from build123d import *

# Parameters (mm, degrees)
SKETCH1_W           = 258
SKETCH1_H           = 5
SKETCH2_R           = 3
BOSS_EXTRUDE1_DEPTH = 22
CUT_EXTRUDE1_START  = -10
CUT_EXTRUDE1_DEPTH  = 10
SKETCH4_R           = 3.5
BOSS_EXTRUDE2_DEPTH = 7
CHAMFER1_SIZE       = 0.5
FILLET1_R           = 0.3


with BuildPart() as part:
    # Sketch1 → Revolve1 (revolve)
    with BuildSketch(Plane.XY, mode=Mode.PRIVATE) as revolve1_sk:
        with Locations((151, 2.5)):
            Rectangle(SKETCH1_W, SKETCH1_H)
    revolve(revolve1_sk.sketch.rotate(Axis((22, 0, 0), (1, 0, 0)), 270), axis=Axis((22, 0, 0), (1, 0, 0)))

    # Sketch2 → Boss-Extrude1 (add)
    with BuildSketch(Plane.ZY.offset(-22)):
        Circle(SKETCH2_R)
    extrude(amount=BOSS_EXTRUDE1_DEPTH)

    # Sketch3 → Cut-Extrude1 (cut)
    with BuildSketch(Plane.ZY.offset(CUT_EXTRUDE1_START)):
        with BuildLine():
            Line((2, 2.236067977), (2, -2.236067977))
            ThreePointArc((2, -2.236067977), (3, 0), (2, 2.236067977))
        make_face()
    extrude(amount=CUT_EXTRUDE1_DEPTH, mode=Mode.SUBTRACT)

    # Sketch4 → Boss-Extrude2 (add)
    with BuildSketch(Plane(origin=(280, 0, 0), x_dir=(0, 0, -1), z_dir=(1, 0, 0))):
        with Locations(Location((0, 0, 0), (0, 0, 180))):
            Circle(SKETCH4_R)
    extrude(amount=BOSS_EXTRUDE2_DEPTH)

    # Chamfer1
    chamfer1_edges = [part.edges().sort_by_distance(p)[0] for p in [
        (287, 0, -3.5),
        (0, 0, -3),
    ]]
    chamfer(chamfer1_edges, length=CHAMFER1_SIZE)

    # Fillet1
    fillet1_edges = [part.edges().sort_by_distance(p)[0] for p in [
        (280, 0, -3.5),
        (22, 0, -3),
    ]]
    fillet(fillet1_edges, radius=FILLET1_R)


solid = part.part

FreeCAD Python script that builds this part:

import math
import FreeCAD as App
import Part
import Sketcher
from FreeCAD import Vector


def edges_at(feature, points):
    """Names of the edges that pass closest to the given points."""
    edges = feature.Shape.Edges
    near = lambda p: min(range(len(edges)), key=lambda i: edges[i].distToShape(Part.Vertex(*p))[0])
    return sorted({f"Edge{near(p) + 1}" for p in points})

doc = App.newDocument("Part")
body = doc.addObject("PartDesign::Body", "Body")

sketch1 = body.newObject("Sketcher::SketchObject", "Sketch")
sketch1.AttachmentSupport = (doc.getObject("XY_Plane"), [""])
sketch1.MapMode = "FlatFace"
sketch1.addGeometry([
    Part.LineSegment(Vector(22, 5, 0), Vector(22, 0, 0)),
    Part.LineSegment(Vector(22, 0, 0), Vector(280, 0, 0)),
    Part.LineSegment(Vector(280, 0, 0), Vector(280, 5, 0)),
    Part.LineSegment(Vector(280, 5, 0), Vector(22, 5, 0)),
], False)
sketch1.addConstraint([
    Sketcher.Constraint("Coincident", 0, 2, 1, 1),
    Sketcher.Constraint("Coincident", 1, 2, 2, 1),
    Sketcher.Constraint("Coincident", 2, 2, 3, 1),
    Sketcher.Constraint("Coincident", 3, 2, 0, 1),
    Sketcher.Constraint("Vertical", 0),
    Sketcher.Constraint("Horizontal", 1),
    Sketcher.Constraint("Vertical", 2),
    Sketcher.Constraint("Horizontal", 3),
    Sketcher.Constraint("PointOnObject", 0, 2, -1),
    Sketcher.Constraint("DistanceX", 1, 1, 1, 2, 258.0),
    Sketcher.Constraint("DistanceY", 0, 2, 0, 1, 5.0),
    Sketcher.Constraint("DistanceX", -1, 1, 0, 2, 22.0),
])
revolution = body.newObject("PartDesign::Revolution", "Revolution")
revolution.Profile = sketch1
revolution.ReferenceAxis = (sketch1, ["H_Axis"])
revolution.Angle = 360

sketch2 = body.newObject("Sketcher::SketchObject", "Sketch001")
sketch2.AttachmentSupport = (doc.getObject("YZ_Plane"), [""])
sketch2.MapMode = "FlatFace"
sketch2.AttachmentOffset = App.Placement(Vector(0, 0, 22), App.Rotation())
sketch2.addGeometry(Part.Circle(Vector(0, 0, 0), Vector(0, 0, 1), 3), False)
sketch2.addConstraint([
    Sketcher.Constraint("Coincident", 0, 3, -1, 1),
    Sketcher.Constraint("Diameter", 0, 6.0),
])
pad1 = body.newObject("PartDesign::Pad", "Pad")
pad1.Profile = sketch2
pad1.Length = 22
pad1.Reversed = True

sketch3 = body.newObject("Sketcher::SketchObject", "Sketch002")
sketch3.AttachmentSupport = (doc.getObject("YZ_Plane"), [""])
sketch3.MapMode = "FlatFace"
sketch3.AttachmentOffset = App.Placement(Vector(0, 0, 10), App.Rotation())
sketch3.addGeometry([
    Part.LineSegment(Vector(2.236068, 2, 0), Vector(-2.236068, 2, 0)),
    Part.ArcOfCircle(Part.Circle(Vector(0, 0, 0), Vector(0, 0, 1), 3), math.radians(41.810315), math.radians(138.189685)),
], False)
sketch3.addConstraint([
    Sketcher.Constraint("Coincident", 0, 1, 1, 1),
    Sketcher.Constraint("Coincident", 1, 2, 0, 2),
    Sketcher.Constraint("Horizontal", 0),
    Sketcher.Constraint("Coincident", 1, 3, -1, 1),
    Sketcher.Constraint("Radius", 1, 3.0),
    Sketcher.Constraint("DistanceY", -1, 1, 0, 1, 2.0),
])
pocket1 = body.newObject("PartDesign::Pocket", "Pocket")
pocket1.Profile = sketch3
pocket1.Length = 10

sketch4 = body.newObject("Sketcher::SketchObject", "Sketch003")
sketch4.AttachmentSupport = (doc.getObject("YZ_Plane"), [""])
sketch4.MapMode = "FlatFace"
sketch4.AttachmentOffset = App.Placement(Vector(0, 0, 280), App.Rotation())
sketch4.addGeometry(Part.Circle(Vector(0, 0, 0), Vector(0, 0, 1), 3.5), False)
sketch4.addConstraint([
    Sketcher.Constraint("Coincident", 0, 3, -1, 1),
    Sketcher.Constraint("Diameter", 0, 7.0),
])
pad2 = body.newObject("PartDesign::Pad", "Pad001")
pad2.Profile = sketch4
pad2.Length = 7
doc.recompute()

chamfer = body.newObject("PartDesign::Chamfer", "Chamfer")
chamfer.Base = (pad2, edges_at(pad2, [(287, 0, -3.5), (0, 0, -3)]))
chamfer.Size = 0.5
doc.recompute()

fillet = body.newObject("PartDesign::Fillet", "Fillet")
fillet.Base = (chamfer, edges_at(chamfer, [(280, 0, -3.5), (22, 0, -3)]))
fillet.Radius = 0.3

doc.recompute()
